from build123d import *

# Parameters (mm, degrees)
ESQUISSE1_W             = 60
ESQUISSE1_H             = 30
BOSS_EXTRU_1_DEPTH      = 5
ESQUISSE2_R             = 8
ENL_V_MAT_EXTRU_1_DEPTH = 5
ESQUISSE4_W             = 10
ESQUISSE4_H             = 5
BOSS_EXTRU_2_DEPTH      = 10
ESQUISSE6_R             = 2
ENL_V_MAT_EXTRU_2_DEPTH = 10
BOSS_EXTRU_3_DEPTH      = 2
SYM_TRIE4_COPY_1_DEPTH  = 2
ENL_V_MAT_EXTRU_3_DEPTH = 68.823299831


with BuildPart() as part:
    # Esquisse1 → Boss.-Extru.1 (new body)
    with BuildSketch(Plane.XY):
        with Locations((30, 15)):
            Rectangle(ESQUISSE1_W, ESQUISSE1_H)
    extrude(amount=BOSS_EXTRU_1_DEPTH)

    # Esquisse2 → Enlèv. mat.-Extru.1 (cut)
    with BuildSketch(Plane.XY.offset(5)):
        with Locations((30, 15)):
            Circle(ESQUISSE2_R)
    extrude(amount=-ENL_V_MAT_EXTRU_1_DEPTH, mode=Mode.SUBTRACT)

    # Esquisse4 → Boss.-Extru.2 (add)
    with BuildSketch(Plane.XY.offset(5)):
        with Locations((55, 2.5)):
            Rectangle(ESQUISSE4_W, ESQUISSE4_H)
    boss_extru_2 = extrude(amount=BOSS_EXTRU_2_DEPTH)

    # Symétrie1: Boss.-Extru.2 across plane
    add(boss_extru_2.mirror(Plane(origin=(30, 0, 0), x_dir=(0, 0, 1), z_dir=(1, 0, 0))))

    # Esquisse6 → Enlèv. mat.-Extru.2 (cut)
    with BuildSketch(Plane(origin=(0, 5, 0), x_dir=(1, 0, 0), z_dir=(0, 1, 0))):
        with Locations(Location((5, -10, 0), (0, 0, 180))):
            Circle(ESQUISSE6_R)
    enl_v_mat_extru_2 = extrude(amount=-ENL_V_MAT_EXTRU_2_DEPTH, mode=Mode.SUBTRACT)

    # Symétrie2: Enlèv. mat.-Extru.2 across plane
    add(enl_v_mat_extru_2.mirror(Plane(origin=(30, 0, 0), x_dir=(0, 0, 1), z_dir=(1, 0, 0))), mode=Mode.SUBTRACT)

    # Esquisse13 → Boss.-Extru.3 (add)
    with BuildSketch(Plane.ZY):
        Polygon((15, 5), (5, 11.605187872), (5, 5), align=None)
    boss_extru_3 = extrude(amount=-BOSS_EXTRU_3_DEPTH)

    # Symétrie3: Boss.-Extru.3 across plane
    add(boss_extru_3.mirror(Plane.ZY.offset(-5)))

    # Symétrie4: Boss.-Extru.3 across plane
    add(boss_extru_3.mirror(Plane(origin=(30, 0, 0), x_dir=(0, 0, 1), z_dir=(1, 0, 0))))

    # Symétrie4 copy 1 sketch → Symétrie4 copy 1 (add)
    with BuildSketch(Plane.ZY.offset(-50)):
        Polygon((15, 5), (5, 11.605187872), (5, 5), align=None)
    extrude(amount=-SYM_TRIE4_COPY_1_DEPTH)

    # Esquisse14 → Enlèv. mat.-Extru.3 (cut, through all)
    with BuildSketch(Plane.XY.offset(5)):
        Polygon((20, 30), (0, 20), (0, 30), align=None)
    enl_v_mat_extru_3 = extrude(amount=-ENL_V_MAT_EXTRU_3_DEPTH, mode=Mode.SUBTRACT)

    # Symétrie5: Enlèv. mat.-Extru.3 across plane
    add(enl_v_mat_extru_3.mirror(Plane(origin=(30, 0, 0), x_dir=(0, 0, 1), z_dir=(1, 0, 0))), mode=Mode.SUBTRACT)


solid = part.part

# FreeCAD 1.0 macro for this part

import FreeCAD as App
import Part
import Sketcher
from FreeCAD import Vector

doc = App.newDocument("Part")
body = doc.addObject("PartDesign::Body", "Body")

sketch1 = doc.addObject("Sketcher::SketchObject", "Sketch")
body.addObject(sketch1)
sketch1.AttachmentSupport = (doc.XY_Plane, [""])
sketch1.MapMode = "FlatFace"
sketch1.addGeometry(Part.LineSegment(Vector(0, 30, 0), Vector(0, 0, 0)), False)
sketch1.addGeometry(Part.LineSegment(Vector(0, 0, 0), Vector(60, 0, 0)), False)
sketch1.addGeometry(Part.LineSegment(Vector(60, 0, 0), Vector(60, 30, 0)), False)
sketch1.addGeometry(Part.LineSegment(Vector(60, 30, 0), Vector(0, 30, 0)), False)
sketch1.addConstraint(Sketcher.Constraint("Coincident", 0, 2, 1, 1))
sketch1.addConstraint(Sketcher.Constraint("Coincident", 1, 2, 2, 1))
sketch1.addConstraint(Sketcher.Constraint("Coincident", 2, 2, 3, 1))
sketch1.addConstraint(Sketcher.Constraint("Coincident", 3, 2, 0, 1))
sketch1.addConstraint(Sketcher.Constraint("Vertical", 0))
sketch1.addConstraint(Sketcher.Constraint("Horizontal", 1))
sketch1.addConstraint(Sketcher.Constraint("Vertical", 2))
sketch1.addConstraint(Sketcher.Constraint("Horizontal", 3))
sketch1.addConstraint(Sketcher.Constraint("Coincident", 0, 2, -1, 1))
sketch1.addConstraint(Sketcher.Constraint("DistanceX", 1, 1, 1, 2, 60.0))
sketch1.addConstraint(Sketcher.Constraint("DistanceY", 0, 2, 0, 1, 30.0))
pad1 = doc.addObject("PartDesign::Pad", "Pad")
body.addObject(pad1)
pad1.Profile = sketch1
pad1.Length = 5

sketch2 = doc.addObject("Sketcher::SketchObject", "Sketch001")
body.addObject(sketch2)
sketch2.AttachmentSupport = (doc.XY_Plane, [""])
sketch2.MapMode = "FlatFace"
sketch2.AttachmentOffset = App.Placement(Vector(0, 0, 5), App.Rotation())
sketch2.addGeometry(Part.Circle(Vector(30, 15, 0), Vector(0, 0, 1), 8), False)
sketch2.addConstraint(Sketcher.Constraint("Diameter", 0, 16.0))
sketch2.addConstraint(Sketcher.Constraint("DistanceX", -1, 1, 0, 3, 30.0))
sketch2.addConstraint(Sketcher.Constraint("DistanceY", -1, 1, 0, 3, 15.0))
pocket1 = doc.addObject("PartDesign::Pocket", "Pocket")
body.addObject(pocket1)
pocket1.Profile = sketch2
pocket1.Length = 5

sketch3 = doc.addObject("Sketcher::SketchObject", "Sketch002")
body.addObject(sketch3)
sketch3.AttachmentSupport = (doc.XY_Plane, [""])
sketch3.MapMode = "FlatFace"
sketch3.AttachmentOffset = App.Placement(Vector(0, 0, 5), App.Rotation())
sketch3.addGeometry(Part.LineSegment(Vector(50, 5, 0), Vector(50, 0, 0)), False)
sketch3.addGeometry(Part.LineSegment(Vector(50, 0, 0), Vector(60, 0, 0)), False)
sketch3.addGeometry(Part.LineSegment(Vector(60, 0, 0), Vector(60, 5, 0)), False)
sketch3.addGeometry(Part.LineSegment(Vector(60, 5, 0), Vector(50, 5, 0)), False)
sketch3.addConstraint(Sketcher.Constraint("Coincident", 0, 2, 1, 1))
sketch3.addConstraint(Sketcher.Constraint("Coincident", 1, 2, 2, 1))
sketch3.addConstraint(Sketcher.Constraint("Coincident", 2, 2, 3, 1))
sketch3.addConstraint(Sketcher.Constraint("Coincident", 3, 2, 0, 1))
sketch3.addConstraint(Sketcher.Constraint("Vertical", 0))
sketch3.addConstraint(Sketcher.Constraint("Horizontal", 1))
sketch3.addConstraint(Sketcher.Constraint("Vertical", 2))
sketch3.addConstraint(Sketcher.Constraint("Horizontal", 3))
sketch3.addConstraint(Sketcher.Constraint("PointOnObject", 0, 2, -1))
sketch3.addConstraint(Sketcher.Constraint("DistanceX", 1, 1, 1, 2, 10.0))
sketch3.addConstraint(Sketcher.Constraint("DistanceY", 0, 2, 0, 1, 5.0))
sketch3.addConstraint(Sketcher.Constraint("DistanceX", -1, 1, 0, 2, 50.0))
pad2 = doc.addObject("PartDesign::Pad", "Pad001")
body.addObject(pad2)
pad2.Profile = sketch3
pad2.Length = 10
doc.recompute()

datumplane = doc.addObject("PartDesign::Plane", "DatumPlane")
body.addObject(datumplane)
datumplane.AttachmentSupport = (doc.YZ_Plane, [""])
datumplane.MapMode = "FlatFace"
datumplane.AttachmentOffset = App.Placement(Vector(0, 0, 30), App.Rotation())
mirrored = doc.addObject("PartDesign::Mirrored", "Mirrored")
body.addObject(mirrored)
mirrored.Originals = [pad2]
mirrored.MirrorPlane = (datumplane, [""])
body.Tip = mirrored

sketch4 = doc.addObject("Sketcher::SketchObject", "Sketch003")
body.addObject(sketch4)
sketch4.AttachmentSupport = (doc.XZ_Plane, [""])
sketch4.MapMode = "FlatFace"
sketch4.AttachmentOffset = App.Placement(Vector(0, 0, -5), App.Rotation())
sketch4.addGeometry(Part.Circle(Vector(5, 10, 0), Vector(0, 0, 1), 2), False)
sketch4.addConstraint(Sketcher.Constraint("Diameter", 0, 4.0))
sketch4.addConstraint(Sketcher.Constraint("DistanceX", -1, 1, 0, 3, 5.0))
sketch4.addConstraint(Sketcher.Constraint("DistanceY", -1, 1, 0, 3, 10.0))
pocket2 = doc.addObject("PartDesign::Pocket", "Pocket001")
body.addObject(pocket2)
pocket2.Profile = sketch4
pocket2.Length = 10
pocket2.Reversed = True
doc.recompute()

datumplane2 = doc.addObject("PartDesign::Plane", "DatumPlane001")
body.addObject(datumplane2)
datumplane2.AttachmentSupport = (doc.YZ_Plane, [""])
datumplane2.MapMode = "FlatFace"
datumplane2.AttachmentOffset = App.Placement(Vector(0, 0, 30), App.Rotation())
mirrored2 = doc.addObject("PartDesign::Mirrored", "Mirrored001")
body.addObject(mirrored2)
mirrored2.Originals = [pocket2]
mirrored2.MirrorPlane = (datumplane2, [""])
body.Tip = mirrored2

sketch5 = doc.addObject("Sketcher::SketchObject", "Sketch004")
body.addObject(sketch5)
sketch5.AttachmentSupport = (doc.YZ_Plane, [""])
sketch5.MapMode = "FlatFace"
sketch5.addGeometry(Part.LineSegment(Vector(5, 15, 0), Vector(12, 5, 0)), False)
sketch5.addGeometry(Part.LineSegment(Vector(12, 5, 0), Vector(5, 5, 0)), False)
sketch5.addGeometry(Part.LineSegment(Vector(5, 5, 0), Vector(5, 15, 0)), False)
sketch5.addConstraint(Sketcher.Constraint("Coincident", 0, 2, 1, 1))
sketch5.addConstraint(Sketcher.Constraint("Coincident", 1, 2, 2, 1))
sketch5.addConstraint(Sketcher.Constraint("Coincident", 2, 2, 0, 1))
sketch5.addConstraint(Sketcher.Constraint("Horizontal", 1))
sketch5.addConstraint(Sketcher.Constraint("Vertical", 2))
sketch5.addConstraint(Sketcher.Constraint("DistanceY", 2, 1, 2, 2, 10.0))
sketch5.addConstraint(Sketcher.Constraint("DistanceY", -1, 1, 0, 2, 5.0))
sketch5.addConstraint(Sketcher.Constraint("DistanceX", -1, 1, 1, 2, 5.0))
sketch5.addConstraint(Sketcher.Constraint("Distance", 0, 11.984511))
pad3 = doc.addObject("PartDesign::Pad", "Pad002")
body.addObject(pad3)
pad3.Profile = sketch5
pad3.Length = 2
doc.recompute()

datumplane3 = doc.addObject("PartDesign::Plane", "DatumPlane002")
body.addObject(datumplane3)
datumplane3.AttachmentSupport = (doc.YZ_Plane, [""])
datumplane3.MapMode = "FlatFace"
datumplane3.AttachmentOffset = App.Placement(Vector(0, 0, 5), App.Rotation())
mirrored3 = doc.addObject("PartDesign::Mirrored", "Mirrored002")
body.addObject(mirrored3)
mirrored3.Originals = [pad3]
mirrored3.MirrorPlane = (datumplane3, [""])
body.Tip = mirrored3
doc.recompute()

datumplane4 = doc.addObject("PartDesign::Plane", "DatumPlane003")
body.addObject(datumplane4)
datumplane4.AttachmentSupport = (doc.YZ_Plane, [""])
datumplane4.MapMode = "FlatFace"
datumplane4.AttachmentOffset = App.Placement(Vector(0, 0, 30), App.Rotation())
mirrored4 = doc.addObject("PartDesign::Mirrored", "Mirrored003")
body.addObject(mirrored4)
mirrored4.Originals = [pad3]
mirrored4.MirrorPlane = (datumplane4, [""])
body.Tip = mirrored4

sketch6 = doc.addObject("Sketcher::SketchObject", "Sketch005")
body.addObject(sketch6)
sketch6.AttachmentSupport = (doc.YZ_Plane, [""])
sketch6.MapMode = "FlatFace"
sketch6.AttachmentOffset = App.Placement(Vector(0, 0, 50), App.Rotation())
sketch6.addGeometry(Part.LineSegment(Vector(5, 15, 0), Vector(12, 5, 0)), False)
sketch6.addGeometry(Part.LineSegment(Vector(12, 5, 0), Vector(5, 5, 0)), False)
sketch6.addGeometry(Part.LineSegment(Vector(5, 5, 0), Vector(5, 15, 0)), False)
sketch6.addConstraint(Sketcher.Constraint("Coincident", 0, 2, 1, 1))
sketch6.addConstraint(Sketcher.Constraint("Coincident", 1, 2, 2, 1))
sketch6.addConstraint(Sketcher.Constraint("Coincident", 2, 2, 0, 1))
sketch6.addConstraint(Sketcher.Constraint("Horizontal", 1))
sketch6.addConstraint(Sketcher.Constraint("Vertical", 2))
sketch6.addConstraint(Sketcher.Constraint("DistanceY", 2, 1, 2, 2, 10.0))
sketch6.addConstraint(Sketcher.Constraint("DistanceY", -1, 1, 0, 2, 5.0))
sketch6.addConstraint(Sketcher.Constraint("DistanceX", -1, 1, 1, 2, 5.0))
sketch6.addConstraint(Sketcher.Constraint("Distance", 0, 11.984511))
pad4 = doc.addObject("PartDesign::Pad", "Pad003")
body.addObject(pad4)
pad4.Profile = sketch6
pad4.Length = 2

sketch7 = doc.addObject("Sketcher::SketchObject", "Sketch006")
body.addObject(sketch7)
sketch7.AttachmentSupport = (doc.XY_Plane, [""])
sketch7.MapMode = "FlatFace"
sketch7.AttachmentOffset = App.Placement(Vector(0, 0, 5), App.Rotation())
sketch7.addGeometry(Part.LineSegment(Vector(0, 20, 0), Vector(20, 30, 0)), False)
sketch7.addGeometry(Part.LineSegment(Vector(20, 30, 0), Vector(0, 30, 0)), False)
sketch7.addGeometry(Part.LineSegment(Vector(0, 30, 0), Vector(0, 20, 0)), False)
sketch7.addConstraint(Sketcher.Constraint("Coincident", 0, 2, 1, 1))
sketch7.addConstraint(Sketcher.Constraint("Coincident", 1, 2, 2, 1))
sketch7.addConstraint(Sketcher.Constraint("Coincident", 2, 2, 0, 1))
sketch7.addConstraint(Sketcher.Constraint("Horizontal", 1))
sketch7.addConstraint(Sketcher.Constraint("Vertical", 2))
sketch7.addConstraint(Sketcher.Constraint("PointOnObject", 1, 2, -2))
sketch7.addConstraint(Sketcher.Constraint("DistanceX", 1, 2, 1, 1, 20.0))
sketch7.addConstraint(Sketcher.Constraint("DistanceY", 2, 2, 2, 1, 10.0))
sketch7.addConstraint(Sketcher.Constraint("DistanceY", -1, 1, 0, 2, 30.0))
pocket3 = doc.addObject("PartDesign::Pocket", "Pocket002")
body.addObject(pocket3)
pocket3.Profile = sketch7
pocket3.Type = "ThroughAll"
doc.recompute()

datumplane5 = doc.addObject("PartDesign::Plane", "DatumPlane004")
body.addObject(datumplane5)
datumplane5.AttachmentSupport = (doc.YZ_Plane, [""])
datumplane5.MapMode = "FlatFace"
datumplane5.AttachmentOffset = App.Placement(Vector(0, 0, 30), App.Rotation())
mirrored5 = doc.addObject("PartDesign::Mirrored", "Mirrored004")
body.addObject(mirrored5)
mirrored5.Originals = [pocket3]
mirrored5.MirrorPlane = (datumplane5, [""])
body.Tip = mirrored5

doc.recompute()
